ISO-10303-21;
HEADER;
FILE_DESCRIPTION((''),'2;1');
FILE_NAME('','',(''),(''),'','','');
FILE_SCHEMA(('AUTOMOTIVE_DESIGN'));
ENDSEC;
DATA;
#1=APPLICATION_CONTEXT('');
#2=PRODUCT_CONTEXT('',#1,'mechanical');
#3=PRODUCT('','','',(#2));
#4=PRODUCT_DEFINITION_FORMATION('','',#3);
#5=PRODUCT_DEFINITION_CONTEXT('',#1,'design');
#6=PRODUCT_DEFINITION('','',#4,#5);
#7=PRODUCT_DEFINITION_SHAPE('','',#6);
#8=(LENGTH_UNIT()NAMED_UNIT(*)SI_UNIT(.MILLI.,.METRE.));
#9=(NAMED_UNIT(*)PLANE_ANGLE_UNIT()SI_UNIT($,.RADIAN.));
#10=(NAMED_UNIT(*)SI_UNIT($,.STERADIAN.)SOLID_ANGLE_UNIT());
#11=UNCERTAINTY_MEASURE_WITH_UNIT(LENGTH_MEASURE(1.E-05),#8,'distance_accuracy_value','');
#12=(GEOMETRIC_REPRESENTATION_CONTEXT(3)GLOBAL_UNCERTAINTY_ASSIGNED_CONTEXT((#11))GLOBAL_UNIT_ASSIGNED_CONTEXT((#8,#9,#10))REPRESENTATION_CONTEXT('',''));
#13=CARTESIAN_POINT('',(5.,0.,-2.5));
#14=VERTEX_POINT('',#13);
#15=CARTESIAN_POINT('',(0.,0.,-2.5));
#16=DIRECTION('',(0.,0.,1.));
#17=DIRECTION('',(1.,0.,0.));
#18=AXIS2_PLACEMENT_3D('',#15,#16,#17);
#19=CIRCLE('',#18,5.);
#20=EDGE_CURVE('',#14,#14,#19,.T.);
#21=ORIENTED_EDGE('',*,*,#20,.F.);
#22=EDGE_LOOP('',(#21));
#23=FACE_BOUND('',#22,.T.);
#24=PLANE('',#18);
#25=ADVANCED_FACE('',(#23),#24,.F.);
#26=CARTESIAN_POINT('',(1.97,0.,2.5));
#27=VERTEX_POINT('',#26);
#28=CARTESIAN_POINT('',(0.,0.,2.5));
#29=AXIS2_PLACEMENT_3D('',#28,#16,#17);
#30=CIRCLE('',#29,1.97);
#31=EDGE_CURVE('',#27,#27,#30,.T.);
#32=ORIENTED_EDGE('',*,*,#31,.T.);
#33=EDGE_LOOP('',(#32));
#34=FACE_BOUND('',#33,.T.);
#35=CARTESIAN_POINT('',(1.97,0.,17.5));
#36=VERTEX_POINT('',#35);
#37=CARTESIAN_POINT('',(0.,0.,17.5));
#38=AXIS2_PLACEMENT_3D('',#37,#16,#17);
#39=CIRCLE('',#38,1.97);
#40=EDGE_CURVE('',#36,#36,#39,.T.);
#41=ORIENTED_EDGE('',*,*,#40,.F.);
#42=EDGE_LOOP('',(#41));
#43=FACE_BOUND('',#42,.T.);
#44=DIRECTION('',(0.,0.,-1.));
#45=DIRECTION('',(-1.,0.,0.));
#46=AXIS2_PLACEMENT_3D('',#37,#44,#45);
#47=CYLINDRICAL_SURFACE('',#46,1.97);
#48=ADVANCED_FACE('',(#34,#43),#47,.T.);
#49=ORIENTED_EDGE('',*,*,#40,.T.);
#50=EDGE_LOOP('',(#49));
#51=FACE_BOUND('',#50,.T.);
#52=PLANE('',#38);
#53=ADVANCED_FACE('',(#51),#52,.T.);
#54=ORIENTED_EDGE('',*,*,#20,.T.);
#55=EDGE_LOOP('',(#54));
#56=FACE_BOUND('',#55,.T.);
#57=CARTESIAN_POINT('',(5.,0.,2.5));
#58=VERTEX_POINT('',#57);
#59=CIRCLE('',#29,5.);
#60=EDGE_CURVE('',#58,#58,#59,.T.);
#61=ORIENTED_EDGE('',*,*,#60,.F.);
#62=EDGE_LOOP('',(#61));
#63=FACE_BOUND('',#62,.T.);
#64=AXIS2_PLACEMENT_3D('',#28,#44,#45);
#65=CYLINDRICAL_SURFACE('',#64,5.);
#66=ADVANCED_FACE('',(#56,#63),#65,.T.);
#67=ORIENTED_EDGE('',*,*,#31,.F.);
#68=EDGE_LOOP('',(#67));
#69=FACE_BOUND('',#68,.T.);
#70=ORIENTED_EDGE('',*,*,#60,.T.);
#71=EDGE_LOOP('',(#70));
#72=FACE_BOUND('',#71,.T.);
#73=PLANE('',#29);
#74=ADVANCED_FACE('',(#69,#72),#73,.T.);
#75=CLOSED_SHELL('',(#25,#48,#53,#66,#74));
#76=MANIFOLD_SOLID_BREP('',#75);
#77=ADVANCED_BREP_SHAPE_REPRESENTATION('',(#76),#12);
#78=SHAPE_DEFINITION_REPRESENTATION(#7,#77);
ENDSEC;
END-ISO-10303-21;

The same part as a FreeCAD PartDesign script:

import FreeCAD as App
import Part
import Sketcher
from FreeCAD import Vector
Q = App.Units.Quantity

doc = App.newDocument("Part")
params = doc.addObject("Spreadsheet::Sheet", "Params")
for row, (alias, value) in enumerate([
    ("sketch1_diameter", "10 mm"),
    ("pad1_length", "5 mm"),
    ("sketch2_diameter", "3.94 mm"),
    ("pad2_length", "15 mm"),
], start=1):
    params.set(f"A{row}", alias)
    params.set(f"B{row}", "=" + value)
    params.setAlias(f"B{row}", alias)

body = doc.addObject("PartDesign::Body", "Body")

# Sketch on XY plane
sketch1 = doc.addObject("Sketcher::SketchObject", "Sketch")
body.addObject(sketch1)
sketch1.AttachmentSupport = (doc.XY_Plane, [""])
sketch1.MapMode = "FlatFace"
sketch1.addGeometry(Part.Circle(Vector(0, 0, 0), Vector(0, 0, 1), 5), False)
sketch1.addConstraint([
    Sketcher.Constraint("Coincident", 0, 3, -1, 1),
    Sketcher.Constraint("Diameter", 0, Q("10 mm")),
])
sketch1.setExpression("Constraints[1]", "Params.sketch1_diameter")
pad1 = doc.addObject("PartDesign::Pad", "Pad")
body.addObject(pad1)
pad1.Profile = sketch1
pad1.setExpression("Length", "Params.pad1_length")
pad1.Midplane = True

# Sketch on XY plane
sketch2 = doc.addObject("Sketcher::SketchObject", "Sketch001")
body.addObject(sketch2)
sketch2.AttachmentSupport = (doc.XY_Plane, [""])
sketch2.MapMode = "FlatFace"
sketch2.AttachmentOffset = App.Placement(Vector(0, 0, 2.5), App.Rotation())
sketch2.addGeometry(Part.Circle(Vector(0, 0, 0), Vector(0, 0, 1), 1.97), False)
sketch2.addConstraint([
    Sketcher.Constraint("Coincident", 0, 3, -1, 1),
    Sketcher.Constraint("Diameter", 0, Q("3.94 mm")),
])
sketch2.setExpression("Constraints[1]", "Params.sketch2_diameter")
pad2 = doc.addObject("PartDesign::Pad", "Pad001")
body.addObject(pad2)
pad2.Profile = sketch2
pad2.setExpression("Length", "Params.pad2_length")

doc.recompute()
